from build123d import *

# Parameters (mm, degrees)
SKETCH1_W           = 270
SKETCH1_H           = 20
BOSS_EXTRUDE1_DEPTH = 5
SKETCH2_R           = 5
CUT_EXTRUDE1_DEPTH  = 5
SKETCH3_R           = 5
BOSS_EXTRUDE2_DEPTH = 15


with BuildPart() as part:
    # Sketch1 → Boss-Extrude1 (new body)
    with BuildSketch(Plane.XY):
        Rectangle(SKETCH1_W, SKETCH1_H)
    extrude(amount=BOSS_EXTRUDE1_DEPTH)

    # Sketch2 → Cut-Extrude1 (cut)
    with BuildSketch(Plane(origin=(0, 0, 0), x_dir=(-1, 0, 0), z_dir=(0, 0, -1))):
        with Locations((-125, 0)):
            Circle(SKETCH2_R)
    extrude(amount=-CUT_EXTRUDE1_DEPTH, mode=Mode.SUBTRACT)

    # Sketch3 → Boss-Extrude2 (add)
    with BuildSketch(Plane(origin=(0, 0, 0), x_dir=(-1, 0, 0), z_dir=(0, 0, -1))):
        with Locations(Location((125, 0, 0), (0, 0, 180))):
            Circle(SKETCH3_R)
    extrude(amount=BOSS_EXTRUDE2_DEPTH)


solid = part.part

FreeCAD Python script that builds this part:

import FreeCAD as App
import Part
import Sketcher

V = App.Vector
Q = App.Units.Quantity

doc = App.newDocument("Part")
body = doc.addObject("PartDesign::Body", "Body")

sketch1 = doc.addObject("Sketcher::SketchObject", "Sketch")
body.addObject(sketch1)
sketch1.AttachmentSupport = (doc.XY_Plane, [""])
sketch1.MapMode = "FlatFace"
sketch1.addGeometry(Part.LineSegment(V(-135, 10, 0), V(-135, -10, 0)), False)
sketch1.addGeometry(Part.LineSegment(V(-135, -10, 0), V(135, -10, 0)), False)
sketch1.addGeometry(Part.LineSegment(V(135, -10, 0), V(135, 10, 0)), False)
sketch1.addGeometry(Part.LineSegment(V(135, 10, 0), V(-135, 10, 0)), False)
sketch1.addConstraint(Sketcher.Constraint("Coincident", 0, 2, 1, 1))
sketch1.addConstraint(Sketcher.Constraint("Coincident", 1, 2, 2, 1))
sketch1.addConstraint(Sketcher.Constraint("Coincident", 2, 2, 3, 1))
sketch1.addConstraint(Sketcher.Constraint("Coincident", 3, 2, 0, 1))
sketch1.addConstraint(Sketcher.Constraint("Vertical", 0))
sketch1.addConstraint(Sketcher.Constraint("Horizontal", 1))
sketch1.addConstraint(Sketcher.Constraint("Vertical", 2))
sketch1.addConstraint(Sketcher.Constraint("Horizontal", 3))
sketch1.addConstraint(Sketcher.Constraint("Symmetric", 0, 2, 2, 2, -1, 1))
sketch1.addConstraint(Sketcher.Constraint("DistanceX", 1, 1, 1, 2, Q("270 mm")))
sketch1.addConstraint(Sketcher.Constraint("DistanceY", 0, 2, 0, 1, Q("20 mm")))
pad1 = doc.addObject("PartDesign::Pad", "Pad")
body.addObject(pad1)
pad1.Profile = sketch1
pad1.Length = 5

sketch2 = doc.addObject("Sketcher::SketchObject", "Sketch001")
body.addObject(sketch2)
sketch2.AttachmentSupport = (doc.XY_Plane, [""])
sketch2.MapMode = "FlatFace"
sketch2.addGeometry(Part.Circle(V(125, 0, 0), V(0, 0, 1), 5), False)
sketch2.addConstraint(Sketcher.Constraint("PointOnObject", 0, 3, -1))
sketch2.addConstraint(Sketcher.Constraint("Diameter", 0, Q("10 mm")))
sketch2.addConstraint(Sketcher.Constraint("DistanceX", -1, 1, 0, 3, Q("125 mm")))
pocket1 = doc.addObject("PartDesign::Pocket", "Pocket")
body.addObject(pocket1)
pocket1.Profile = sketch2
pocket1.Length = 5
pocket1.Reversed = True

sketch3 = doc.addObject("Sketcher::SketchObject", "Sketch002")
body.addObject(sketch3)
sketch3.AttachmentSupport = (doc.XY_Plane, [""])
sketch3.MapMode = "FlatFace"
sketch3.addGeometry(Part.Circle(V(-125, 0, 0), V(0, 0, 1), 5), False)
sketch3.addConstraint(Sketcher.Constraint("PointOnObject", 0, 3, -1))
sketch3.addConstraint(Sketcher.Constraint("Diameter", 0, Q("10 mm")))
sketch3.addConstraint(Sketcher.Constraint("DistanceX", 0, 3, -1, 1, Q("125 mm")))
pad2 = doc.addObject("PartDesign::Pad", "Pad001")
body.addObject(pad2)
pad2.Profile = sketch3
pad2.Length = 15
pad2.Reversed = True

doc.recompute()
